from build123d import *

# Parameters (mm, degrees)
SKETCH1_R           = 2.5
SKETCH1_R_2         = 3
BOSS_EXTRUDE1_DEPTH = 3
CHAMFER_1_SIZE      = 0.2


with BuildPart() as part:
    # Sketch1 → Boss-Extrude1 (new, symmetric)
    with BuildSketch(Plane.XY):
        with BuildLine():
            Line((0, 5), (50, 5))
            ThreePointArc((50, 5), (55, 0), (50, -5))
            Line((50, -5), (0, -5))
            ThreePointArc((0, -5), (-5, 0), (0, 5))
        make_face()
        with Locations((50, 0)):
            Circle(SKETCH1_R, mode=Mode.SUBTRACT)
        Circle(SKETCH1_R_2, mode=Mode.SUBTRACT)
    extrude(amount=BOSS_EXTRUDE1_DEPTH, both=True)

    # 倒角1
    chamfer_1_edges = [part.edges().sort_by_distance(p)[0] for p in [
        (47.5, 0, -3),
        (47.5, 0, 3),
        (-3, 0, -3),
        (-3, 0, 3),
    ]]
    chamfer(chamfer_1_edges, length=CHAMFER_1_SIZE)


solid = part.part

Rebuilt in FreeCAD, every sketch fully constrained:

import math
import FreeCAD as App
import Part
import Sketcher

V = App.Vector


def edges_at(feature, points):
    """Names of the edges that pass closest to the given points."""
    edges = feature.Shape.Edges
    near = lambda p: min(range(len(edges)), key=lambda i: edges[i].distToShape(Part.Vertex(*p))[0])
    return sorted({f"Edge{near(p) + 1}" for p in points})

doc = App.newDocument("Part")
body = doc.addObject("PartDesign::Body", "Body")

sketch1 = body.newObject("Sketcher::SketchObject", "Sketch")
sketch1.AttachmentSupport = (doc.getObject("XY_Plane"), [""])
sketch1.MapMode = "FlatFace"
sketch1.addGeometry([
    Part.LineSegment(V(50, 5, 0), V(0, 5, 0)),
    Part.ArcOfCircle(Part.Circle(V(0, 0, 0), V(0, 0, 1), 5), math.radians(90), math.radians(270)),
    Part.LineSegment(V(0, -5, 0), V(50, -5, 0)),
    Part.ArcOfCircle(Part.Circle(V(50, 0, 0), V(0, 0, 1), 5), math.radians(-90), math.radians(90)),
    Part.Circle(V(50, 0, 0), V(0, 0, 1), 2.5),
    Part.Circle(V(0, 0, 0), V(0, 0, 1), 3),
], False)
sketch1.addConstraint([
    Sketcher.Constraint("Tangent", 0, 2, 1, 1),
    Sketcher.Constraint("Tangent", 1, 2, 2, 1),
    Sketcher.Constraint("Tangent", 2, 2, 3, 1),
    Sketcher.Constraint("Tangent", 3, 2, 0, 1),
    Sketcher.Constraint("Horizontal", 0),
    Sketcher.Constraint("Horizontal", 2),
    Sketcher.Constraint("Coincident", 1, 3, -1, 1),
    Sketcher.Constraint("Coincident", 5, 3, -1, 1),
    Sketcher.Constraint("Coincident", 4, 3, 3, 3),
    Sketcher.Constraint("Diameter", 4, 5.0),
    Sketcher.Constraint("Diameter", 5, 6.0),
    Sketcher.Constraint("Radius", 1, 5.0),
    Sketcher.Constraint("DistanceX", 0, 2, 0, 1, 50.0),
])
pad1 = body.newObject("PartDesign::Pad", "Pad")
pad1.Profile = sketch1
pad1.Length = 6
pad1.Midplane = True
doc.recompute()

chamfer = body.newObject("PartDesign::Chamfer", "Chamfer")
chamfer.Base = (pad1, edges_at(pad1, [
    (47.5, 0, -3),
    (47.5, 0, 3),
    (-3, 0, -3),
    (-3, 0, 3),
]))
chamfer.Size = 0.2

doc.recompute()
